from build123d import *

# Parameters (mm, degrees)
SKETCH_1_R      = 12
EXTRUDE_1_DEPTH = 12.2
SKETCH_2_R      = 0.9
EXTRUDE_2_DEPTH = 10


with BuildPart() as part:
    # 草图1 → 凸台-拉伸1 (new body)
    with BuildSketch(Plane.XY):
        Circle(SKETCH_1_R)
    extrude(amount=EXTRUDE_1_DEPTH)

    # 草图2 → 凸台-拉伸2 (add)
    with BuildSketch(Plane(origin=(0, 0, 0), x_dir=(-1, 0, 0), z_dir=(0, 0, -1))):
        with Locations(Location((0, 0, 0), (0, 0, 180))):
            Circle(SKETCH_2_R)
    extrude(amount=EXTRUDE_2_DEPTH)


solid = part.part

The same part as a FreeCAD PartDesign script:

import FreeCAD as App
import Part
import Sketcher
Q = App.Units.Quantity

doc = App.newDocument("Part")
body = doc.addObject("PartDesign::Body", "Body")

sketch1 = doc.addObject("Sketcher::SketchObject", "Sketch")
body.addObject(sketch1)
sketch1.AttachmentSupport = (doc.XY_Plane, [""])
sketch1.MapMode = "FlatFace"
sketch1.addGeometry(Part.Circle(App.Vector(0, 0, 0), App.Vector(0, 0, 1), 12), False)
sketch1.addConstraint([
    Sketcher.Constraint("Coincident", 0, 3, -1, 1),
    Sketcher.Constraint("Diameter", 0, Q("24 mm")),
])
pad1 = doc.addObject("PartDesign::Pad", "Pad")
body.addObject(pad1)
pad1.Profile = sketch1
pad1.Length = 12.2

sketch2 = doc.addObject("Sketcher::SketchObject", "Sketch001")
body.addObject(sketch2)
sketch2.AttachmentSupport = (doc.XY_Plane, [""])
sketch2.MapMode = "FlatFace"
sketch2.addGeometry(Part.Circle(App.Vector(0, 0, 0), App.Vector(0, 0, 1), 0.9), False)
sketch2.addConstraint([
    Sketcher.Constraint("Coincident", 0, 3, -1, 1),
    Sketcher.Constraint("Diameter", 0, Q("1.8 mm")),
])
pad2 = doc.addObject("PartDesign::Pad", "Pad001")
body.addObject(pad2)
pad2.Profile = sketch2
pad2.Length = 10
pad2.Reversed = True

doc.recompute()
